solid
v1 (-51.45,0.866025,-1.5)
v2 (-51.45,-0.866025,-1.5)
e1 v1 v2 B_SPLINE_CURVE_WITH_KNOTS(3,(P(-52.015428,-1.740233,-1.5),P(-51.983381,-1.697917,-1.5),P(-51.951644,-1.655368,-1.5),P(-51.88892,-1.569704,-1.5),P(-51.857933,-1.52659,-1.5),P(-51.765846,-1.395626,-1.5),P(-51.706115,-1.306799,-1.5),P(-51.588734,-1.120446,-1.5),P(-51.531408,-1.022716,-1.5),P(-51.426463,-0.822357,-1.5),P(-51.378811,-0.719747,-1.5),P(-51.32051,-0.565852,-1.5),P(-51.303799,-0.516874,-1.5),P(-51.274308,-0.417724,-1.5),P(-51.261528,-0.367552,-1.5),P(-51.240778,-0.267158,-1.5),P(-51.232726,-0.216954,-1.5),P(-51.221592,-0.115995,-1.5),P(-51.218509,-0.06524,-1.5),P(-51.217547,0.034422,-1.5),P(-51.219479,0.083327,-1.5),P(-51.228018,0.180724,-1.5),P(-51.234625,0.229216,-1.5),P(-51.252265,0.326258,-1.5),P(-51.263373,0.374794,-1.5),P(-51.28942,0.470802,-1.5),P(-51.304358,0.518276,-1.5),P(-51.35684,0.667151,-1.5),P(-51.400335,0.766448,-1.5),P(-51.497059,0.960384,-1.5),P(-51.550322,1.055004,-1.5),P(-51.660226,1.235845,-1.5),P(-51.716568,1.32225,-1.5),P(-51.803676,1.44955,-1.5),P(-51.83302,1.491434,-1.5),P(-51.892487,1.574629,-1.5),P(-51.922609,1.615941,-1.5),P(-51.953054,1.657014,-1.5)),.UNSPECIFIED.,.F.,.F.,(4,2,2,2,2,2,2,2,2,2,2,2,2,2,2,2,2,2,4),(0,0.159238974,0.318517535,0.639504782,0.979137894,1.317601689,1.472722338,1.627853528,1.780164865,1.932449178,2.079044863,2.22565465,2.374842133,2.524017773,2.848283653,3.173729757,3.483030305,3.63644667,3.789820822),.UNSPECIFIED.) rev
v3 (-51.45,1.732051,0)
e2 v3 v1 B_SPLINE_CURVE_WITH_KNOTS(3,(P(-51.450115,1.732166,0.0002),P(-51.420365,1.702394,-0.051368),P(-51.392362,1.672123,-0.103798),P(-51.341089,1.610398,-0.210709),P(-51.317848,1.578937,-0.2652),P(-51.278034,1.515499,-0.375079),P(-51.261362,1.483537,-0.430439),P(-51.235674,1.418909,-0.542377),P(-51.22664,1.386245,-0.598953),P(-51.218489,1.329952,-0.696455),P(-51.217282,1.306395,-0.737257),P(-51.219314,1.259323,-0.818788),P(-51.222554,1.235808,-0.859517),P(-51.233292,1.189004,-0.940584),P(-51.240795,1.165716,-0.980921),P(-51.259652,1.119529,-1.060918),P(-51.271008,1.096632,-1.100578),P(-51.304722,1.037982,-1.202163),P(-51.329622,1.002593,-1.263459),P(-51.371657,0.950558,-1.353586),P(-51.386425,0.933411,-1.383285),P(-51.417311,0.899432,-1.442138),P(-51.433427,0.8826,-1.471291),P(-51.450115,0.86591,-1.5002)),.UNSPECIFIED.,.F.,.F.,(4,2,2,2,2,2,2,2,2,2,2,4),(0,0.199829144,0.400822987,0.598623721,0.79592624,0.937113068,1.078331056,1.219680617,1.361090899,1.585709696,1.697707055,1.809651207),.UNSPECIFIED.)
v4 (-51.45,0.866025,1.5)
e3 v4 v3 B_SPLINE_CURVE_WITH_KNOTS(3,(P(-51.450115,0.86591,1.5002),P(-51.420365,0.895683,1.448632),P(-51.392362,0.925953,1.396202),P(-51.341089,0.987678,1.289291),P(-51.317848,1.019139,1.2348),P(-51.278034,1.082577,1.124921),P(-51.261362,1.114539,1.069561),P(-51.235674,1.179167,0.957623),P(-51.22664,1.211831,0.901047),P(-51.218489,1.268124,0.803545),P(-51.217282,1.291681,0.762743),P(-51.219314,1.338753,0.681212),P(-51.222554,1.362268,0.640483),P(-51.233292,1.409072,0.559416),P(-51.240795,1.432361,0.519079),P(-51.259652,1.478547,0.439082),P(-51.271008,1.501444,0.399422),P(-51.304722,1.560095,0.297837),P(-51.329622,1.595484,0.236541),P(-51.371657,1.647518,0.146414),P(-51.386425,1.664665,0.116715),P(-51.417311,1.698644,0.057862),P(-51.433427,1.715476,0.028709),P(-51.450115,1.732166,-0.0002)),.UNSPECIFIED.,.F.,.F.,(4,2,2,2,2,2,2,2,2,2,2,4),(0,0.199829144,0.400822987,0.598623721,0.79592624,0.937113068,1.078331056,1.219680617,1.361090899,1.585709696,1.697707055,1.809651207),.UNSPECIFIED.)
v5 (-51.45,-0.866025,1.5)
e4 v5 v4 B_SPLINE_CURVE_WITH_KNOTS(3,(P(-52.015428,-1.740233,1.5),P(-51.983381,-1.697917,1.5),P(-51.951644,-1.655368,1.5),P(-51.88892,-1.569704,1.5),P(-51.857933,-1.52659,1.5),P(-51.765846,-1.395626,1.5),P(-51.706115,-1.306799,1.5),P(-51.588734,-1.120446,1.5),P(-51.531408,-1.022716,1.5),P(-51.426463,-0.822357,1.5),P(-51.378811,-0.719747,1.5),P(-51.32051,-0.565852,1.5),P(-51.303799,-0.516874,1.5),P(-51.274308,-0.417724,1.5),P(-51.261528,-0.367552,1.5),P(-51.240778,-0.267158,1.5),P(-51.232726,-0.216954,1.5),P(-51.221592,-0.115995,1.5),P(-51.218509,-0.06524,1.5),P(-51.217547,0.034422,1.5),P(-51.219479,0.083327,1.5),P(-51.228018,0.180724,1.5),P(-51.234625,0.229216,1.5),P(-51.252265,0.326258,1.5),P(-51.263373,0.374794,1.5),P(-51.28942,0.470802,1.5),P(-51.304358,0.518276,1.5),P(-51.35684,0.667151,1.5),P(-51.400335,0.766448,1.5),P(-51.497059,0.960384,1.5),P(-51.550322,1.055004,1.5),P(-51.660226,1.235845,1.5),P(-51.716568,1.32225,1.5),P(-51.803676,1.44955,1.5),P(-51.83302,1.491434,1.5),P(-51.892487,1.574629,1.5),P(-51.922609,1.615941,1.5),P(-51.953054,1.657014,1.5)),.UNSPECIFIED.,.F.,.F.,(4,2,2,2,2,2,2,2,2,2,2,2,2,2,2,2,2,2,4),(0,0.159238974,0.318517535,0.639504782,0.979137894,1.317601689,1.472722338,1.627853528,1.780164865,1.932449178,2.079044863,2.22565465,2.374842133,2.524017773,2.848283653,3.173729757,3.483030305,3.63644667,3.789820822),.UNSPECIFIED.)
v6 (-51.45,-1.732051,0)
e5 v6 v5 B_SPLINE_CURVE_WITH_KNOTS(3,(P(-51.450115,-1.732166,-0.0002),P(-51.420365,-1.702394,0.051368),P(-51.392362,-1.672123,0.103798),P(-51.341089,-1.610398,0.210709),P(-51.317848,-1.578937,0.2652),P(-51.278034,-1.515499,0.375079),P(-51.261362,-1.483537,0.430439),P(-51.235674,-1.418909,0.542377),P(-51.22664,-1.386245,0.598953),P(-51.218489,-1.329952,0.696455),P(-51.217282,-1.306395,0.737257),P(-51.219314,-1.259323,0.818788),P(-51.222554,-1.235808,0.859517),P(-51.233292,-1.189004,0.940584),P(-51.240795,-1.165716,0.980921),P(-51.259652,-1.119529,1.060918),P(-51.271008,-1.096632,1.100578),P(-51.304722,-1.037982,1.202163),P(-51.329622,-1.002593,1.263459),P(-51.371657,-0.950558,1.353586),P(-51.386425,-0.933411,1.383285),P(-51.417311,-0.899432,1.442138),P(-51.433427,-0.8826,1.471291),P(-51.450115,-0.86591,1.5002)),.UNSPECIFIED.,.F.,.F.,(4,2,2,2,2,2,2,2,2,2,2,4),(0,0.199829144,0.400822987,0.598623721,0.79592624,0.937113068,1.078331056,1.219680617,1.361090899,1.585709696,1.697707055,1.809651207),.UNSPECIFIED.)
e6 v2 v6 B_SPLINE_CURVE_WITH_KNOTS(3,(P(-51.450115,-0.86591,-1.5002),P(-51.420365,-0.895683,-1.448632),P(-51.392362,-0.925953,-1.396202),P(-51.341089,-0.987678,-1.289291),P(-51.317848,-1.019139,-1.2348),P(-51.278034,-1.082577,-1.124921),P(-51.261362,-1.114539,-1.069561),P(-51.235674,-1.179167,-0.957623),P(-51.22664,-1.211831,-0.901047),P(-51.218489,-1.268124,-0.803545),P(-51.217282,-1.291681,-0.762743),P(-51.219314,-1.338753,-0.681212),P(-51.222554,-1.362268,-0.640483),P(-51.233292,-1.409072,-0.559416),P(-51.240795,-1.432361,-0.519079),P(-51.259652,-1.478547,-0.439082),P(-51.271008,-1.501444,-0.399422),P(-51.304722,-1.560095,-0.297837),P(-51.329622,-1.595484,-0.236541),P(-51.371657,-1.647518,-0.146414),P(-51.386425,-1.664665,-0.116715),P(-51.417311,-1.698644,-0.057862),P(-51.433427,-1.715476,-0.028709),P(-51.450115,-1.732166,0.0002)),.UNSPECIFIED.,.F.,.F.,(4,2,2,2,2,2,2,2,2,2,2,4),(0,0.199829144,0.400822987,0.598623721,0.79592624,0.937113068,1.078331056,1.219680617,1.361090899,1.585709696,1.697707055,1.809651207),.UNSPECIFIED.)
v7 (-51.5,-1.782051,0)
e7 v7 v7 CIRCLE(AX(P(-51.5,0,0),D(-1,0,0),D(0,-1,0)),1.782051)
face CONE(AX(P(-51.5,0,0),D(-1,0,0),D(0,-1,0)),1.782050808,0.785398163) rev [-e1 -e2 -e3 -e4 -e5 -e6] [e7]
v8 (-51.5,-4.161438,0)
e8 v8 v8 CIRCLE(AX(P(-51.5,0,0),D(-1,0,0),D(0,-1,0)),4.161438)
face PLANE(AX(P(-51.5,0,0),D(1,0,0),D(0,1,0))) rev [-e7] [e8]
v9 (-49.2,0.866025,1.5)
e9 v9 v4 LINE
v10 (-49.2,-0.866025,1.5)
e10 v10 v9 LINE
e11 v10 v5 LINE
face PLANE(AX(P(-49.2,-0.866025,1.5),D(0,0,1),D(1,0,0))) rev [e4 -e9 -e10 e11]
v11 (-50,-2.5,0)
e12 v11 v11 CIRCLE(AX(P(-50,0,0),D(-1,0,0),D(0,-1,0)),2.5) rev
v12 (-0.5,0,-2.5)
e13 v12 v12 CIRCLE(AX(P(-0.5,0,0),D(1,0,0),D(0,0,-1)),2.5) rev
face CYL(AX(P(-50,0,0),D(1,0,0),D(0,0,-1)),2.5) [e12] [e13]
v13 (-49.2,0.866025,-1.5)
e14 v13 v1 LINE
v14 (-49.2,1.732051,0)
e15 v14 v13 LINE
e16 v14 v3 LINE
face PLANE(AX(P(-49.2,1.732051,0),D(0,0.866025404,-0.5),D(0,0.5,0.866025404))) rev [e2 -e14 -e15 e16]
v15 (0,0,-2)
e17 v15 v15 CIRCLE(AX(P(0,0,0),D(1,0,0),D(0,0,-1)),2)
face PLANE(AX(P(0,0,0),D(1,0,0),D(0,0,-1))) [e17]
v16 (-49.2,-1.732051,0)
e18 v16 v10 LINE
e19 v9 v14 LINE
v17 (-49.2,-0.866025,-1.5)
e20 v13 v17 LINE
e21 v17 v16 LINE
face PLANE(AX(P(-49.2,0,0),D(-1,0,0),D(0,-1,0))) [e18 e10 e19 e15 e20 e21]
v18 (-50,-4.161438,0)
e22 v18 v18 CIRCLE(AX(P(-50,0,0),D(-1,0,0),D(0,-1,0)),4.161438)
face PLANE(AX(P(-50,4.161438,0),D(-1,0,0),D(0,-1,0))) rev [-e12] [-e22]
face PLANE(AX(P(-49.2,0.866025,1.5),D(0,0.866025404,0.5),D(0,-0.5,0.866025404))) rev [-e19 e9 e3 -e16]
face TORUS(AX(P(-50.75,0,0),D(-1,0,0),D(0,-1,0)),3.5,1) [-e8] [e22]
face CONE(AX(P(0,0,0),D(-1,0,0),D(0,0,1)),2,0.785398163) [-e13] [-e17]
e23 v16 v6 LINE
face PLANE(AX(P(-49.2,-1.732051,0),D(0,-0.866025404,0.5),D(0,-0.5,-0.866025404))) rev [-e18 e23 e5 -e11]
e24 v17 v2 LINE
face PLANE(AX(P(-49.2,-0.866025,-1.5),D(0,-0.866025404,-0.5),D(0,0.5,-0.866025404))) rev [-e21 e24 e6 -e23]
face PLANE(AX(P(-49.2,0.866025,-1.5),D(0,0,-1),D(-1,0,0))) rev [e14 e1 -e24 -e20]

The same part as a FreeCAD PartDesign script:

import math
import FreeCAD as App
import Part
import Sketcher
Q = App.Units.Quantity


def edges_at(feature, points):
    """Names of the edges that pass closest to the given points."""
    edges = feature.Shape.Edges
    near = lambda p: min(range(len(edges)), key=lambda i: edges[i].distToShape(Part.Vertex(*p))[0])
    return sorted({f"Edge{near(p) + 1}" for p in points})

doc = App.newDocument("Part")
body = doc.addObject("PartDesign::Body", "Body")

sketch1 = doc.addObject("Sketcher::SketchObject", "Sketch")
body.addObject(sketch1)
sketch1.AttachmentSupport = (doc.YZ_Plane, [""])
sketch1.MapMode = "FlatFace"
sketch1.addGeometry(Part.Circle(App.Vector(0, 0, 0), App.Vector(0, 0, 1), 2.5), False)
sketch1.addConstraint([
    Sketcher.Constraint("Coincident", 0, 3, -1, 1),
    Sketcher.Constraint("Diameter", 0, Q("5 mm")),
])
pad1 = doc.addObject("PartDesign::Pad", "Pad")
body.addObject(pad1)
pad1.Profile = sketch1
pad1.Length = 50
pad1.Reversed = True
doc.recompute()

chamfer = doc.addObject("PartDesign::Chamfer", "Chamfer")
body.addObject(chamfer)
chamfer.Base = (pad1, edges_at(pad1, [(0, 0, 2.5)]))
chamfer.Size = 0.5

sketch2 = doc.addObject("Sketcher::SketchObject", "Sketch001")
body.addObject(sketch2)
sketch2.AttachmentSupport = (doc.XY_Plane, [""])
sketch2.MapMode = "FlatFace"
sketch2.addGeometry([
    Part.LineSegment(App.Vector(-51.5, 4.2, 0), App.Vector(-51.5, 0, 0)),
    Part.LineSegment(App.Vector(-51.5, 0, 0), App.Vector(-50, 0, 0)),
    Part.LineSegment(App.Vector(-50, 0, 0), App.Vector(-50, 4.2, 0)),
    Part.ArcOfCircle(Part.Circle(App.Vector(-50.8, 3.5, 0), App.Vector(0, 0, 1), 1), math.radians(41), math.radians(139)),
], False)
sketch2.addConstraint([
    Sketcher.Constraint("Coincident", 0, 2, 1, 1),
    Sketcher.Constraint("Coincident", 1, 2, 2, 1),
    Sketcher.Constraint("Coincident", 2, 2, 3, 1),
    Sketcher.Constraint("Coincident", 3, 2, 0, 1),
    Sketcher.Constraint("Vertical", 0),
    Sketcher.Constraint("Horizontal", 1),
    Sketcher.Constraint("Vertical", 2),
    Sketcher.Constraint("PointOnObject", 0, 2, -1),
    Sketcher.Constraint("Horizontal", 2, 2, 3, 2),
    Sketcher.Constraint("Radius", 3, Q("1 mm")),
    Sketcher.Constraint("DistanceX", 1, 1, 1, 2, Q("1.5 mm")),
    Sketcher.Constraint("DistanceX", 1, 2, -1, 1, Q("50 mm")),
    Sketcher.Constraint("DistanceY", -1, 1, 3, 3, Q("3.5 mm")),
])
revolution = doc.addObject("PartDesign::Revolution", "Revolution")
body.addObject(revolution)
revolution.Profile = sketch2
revolution.ReferenceAxis = (sketch2, ["H_Axis"])
revolution.Angle = 360

sketch3 = doc.addObject("Sketcher::SketchObject", "Sketch002")
body.addObject(sketch3)
sketch3.AttachmentSupport = (doc.YZ_Plane, [""])
sketch3.MapMode = "FlatFace"
sketch3.AttachmentOffset = App.Placement(App.Vector(0, 0, -51.5), App.Rotation())
sketch3.addGeometry([
    Part.LineSegment(App.Vector(1.7, 0, 0), App.Vector(0.9, -1.5, 0)),
    Part.LineSegment(App.Vector(0.9, -1.5, 0), App.Vector(-0.9, -1.5, 0)),
    Part.LineSegment(App.Vector(-0.9, -1.5, 0), App.Vector(-1.7, 0, 0)),
    Part.LineSegment(App.Vector(-1.7, 0, 0), App.Vector(-0.9, 1.5, 0)),
    Part.LineSegment(App.Vector(-0.9, 1.5, 0), App.Vector(0.9, 1.5, 0)),
    Part.LineSegment(App.Vector(0.9, 1.5, 0), App.Vector(1.7, 0, 0)),
], False)
sketch3.addConstraint([
    Sketcher.Constraint("Coincident", 0, 2, 1, 1),
    Sketcher.Constraint("Coincident", 1, 2, 2, 1),
    Sketcher.Constraint("Coincident", 2, 2, 3, 1),
    Sketcher.Constraint("Coincident", 3, 2, 4, 1),
    Sketcher.Constraint("Coincident", 4, 2, 5, 1),
    Sketcher.Constraint("Coincident", 5, 2, 0, 1),
    Sketcher.Constraint("Horizontal", 1),
    Sketcher.Constraint("Horizontal", 4),
    Sketcher.Constraint("Symmetric", 0, 2, 3, 2, -1, 1),
    Sketcher.Constraint("Symmetric", 2, 2, 5, 2, -1, 1),
    Sketcher.Constraint("PointOnObject", 2, 2, -1),
    Sketcher.Constraint("Parallel", 2, 5),
    Sketcher.Constraint("Vertical", 1, 2, 3, 2),
    Sketcher.Constraint("Angle", 0, Q("-120 deg")),
    Sketcher.Constraint("DistanceY", 1, 2, 3, 2, Q("3 mm")),
    Sketcher.Constraint("DistanceX", 1, 2, 1, 1, Q("1.732051 mm")),
])
pocket1 = doc.addObject("PartDesign::Pocket", "Pocket")
body.addObject(pocket1)
pocket1.Profile = sketch3
pocket1.Length = 2.3
pocket1.Reversed = True

sketch4 = doc.addObject("Sketcher::SketchObject", "Sketch003")
body.addObject(sketch4)
sketch4.AttachmentSupport = (doc.YZ_Plane, [""])
sketch4.MapMode = "FlatFace"
sketch4.AttachmentOffset = App.Placement(App.Vector(0, 0, -51.5), App.Rotation())
sketch4.addGeometry(Part.Circle(App.Vector(0, 0, 0), App.Vector(0, 0, 1), 1.8), False)
sketch4.addConstraint([
    Sketcher.Constraint("Coincident", 0, 3, -1, 1),
    Sketcher.Constraint("Diameter", 0, Q("3.564102 mm")),
])
pocket2 = doc.addObject("PartDesign::Pocket", "Pocket001")
body.addObject(pocket2)
pocket2.Profile = sketch4
pocket2.Length = 1
pocket2.Reversed = True
pocket2.TaperAngle = -45

doc.recompute()
